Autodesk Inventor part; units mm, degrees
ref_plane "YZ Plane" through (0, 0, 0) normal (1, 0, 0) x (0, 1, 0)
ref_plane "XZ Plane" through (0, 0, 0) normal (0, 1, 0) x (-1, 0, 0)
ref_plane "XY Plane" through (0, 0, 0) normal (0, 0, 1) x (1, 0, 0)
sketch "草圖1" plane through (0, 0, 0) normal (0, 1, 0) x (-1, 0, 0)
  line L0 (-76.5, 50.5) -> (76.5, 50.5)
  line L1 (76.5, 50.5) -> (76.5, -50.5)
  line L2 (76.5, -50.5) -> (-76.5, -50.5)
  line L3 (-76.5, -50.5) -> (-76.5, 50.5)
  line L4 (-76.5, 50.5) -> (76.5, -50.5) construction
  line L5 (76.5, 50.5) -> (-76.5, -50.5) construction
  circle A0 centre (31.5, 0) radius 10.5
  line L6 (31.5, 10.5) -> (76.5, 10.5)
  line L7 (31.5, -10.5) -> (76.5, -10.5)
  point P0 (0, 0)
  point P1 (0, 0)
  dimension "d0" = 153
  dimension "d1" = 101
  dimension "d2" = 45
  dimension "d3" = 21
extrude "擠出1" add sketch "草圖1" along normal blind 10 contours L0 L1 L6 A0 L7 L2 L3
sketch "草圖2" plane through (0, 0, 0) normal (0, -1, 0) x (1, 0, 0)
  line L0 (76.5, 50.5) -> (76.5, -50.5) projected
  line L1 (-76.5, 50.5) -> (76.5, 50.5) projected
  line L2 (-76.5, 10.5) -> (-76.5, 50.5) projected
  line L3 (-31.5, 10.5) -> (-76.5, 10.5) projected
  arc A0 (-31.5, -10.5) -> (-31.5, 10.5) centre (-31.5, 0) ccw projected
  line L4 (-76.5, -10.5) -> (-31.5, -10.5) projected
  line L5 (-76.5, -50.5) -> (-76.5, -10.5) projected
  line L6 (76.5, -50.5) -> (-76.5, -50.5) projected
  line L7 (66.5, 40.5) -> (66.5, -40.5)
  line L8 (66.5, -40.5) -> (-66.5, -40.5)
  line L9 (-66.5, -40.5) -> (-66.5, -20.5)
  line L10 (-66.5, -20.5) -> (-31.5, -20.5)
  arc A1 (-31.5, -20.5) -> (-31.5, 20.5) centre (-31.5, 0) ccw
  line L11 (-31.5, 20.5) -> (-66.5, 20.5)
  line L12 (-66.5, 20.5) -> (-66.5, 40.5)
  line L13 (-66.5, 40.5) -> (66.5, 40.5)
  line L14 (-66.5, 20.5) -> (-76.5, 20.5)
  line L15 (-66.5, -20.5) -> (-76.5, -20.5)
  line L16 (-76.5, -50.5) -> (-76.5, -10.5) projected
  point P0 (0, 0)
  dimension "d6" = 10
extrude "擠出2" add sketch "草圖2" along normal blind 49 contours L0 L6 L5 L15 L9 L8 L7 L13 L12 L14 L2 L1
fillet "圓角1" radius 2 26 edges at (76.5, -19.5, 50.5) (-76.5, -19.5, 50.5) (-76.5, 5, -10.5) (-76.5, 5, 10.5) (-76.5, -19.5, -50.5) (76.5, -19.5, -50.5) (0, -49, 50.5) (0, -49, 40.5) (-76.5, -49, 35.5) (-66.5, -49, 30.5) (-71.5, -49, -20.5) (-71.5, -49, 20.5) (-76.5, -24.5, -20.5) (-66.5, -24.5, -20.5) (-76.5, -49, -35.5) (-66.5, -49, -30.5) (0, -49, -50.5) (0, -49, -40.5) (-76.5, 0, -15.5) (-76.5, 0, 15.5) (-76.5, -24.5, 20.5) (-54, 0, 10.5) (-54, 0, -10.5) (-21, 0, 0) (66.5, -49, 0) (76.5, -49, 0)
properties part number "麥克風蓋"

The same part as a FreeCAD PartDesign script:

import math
import FreeCAD as App
import Part
import Sketcher

V = App.Vector


def edges_at(feature, points):
    """Names of the edges that pass closest to the given points."""
    edges = feature.Shape.Edges
    near = lambda p: min(range(len(edges)), key=lambda i: edges[i].distToShape(Part.Vertex(*p))[0])
    return sorted({f"Edge{near(p) + 1}" for p in points})


def add_polygon(sketch, points):
    """Adds a closed chain of lines whose ends are joined by coincident constraints."""
    first, n = sketch.GeometryCount, len(points)
    for a, b in zip(points, points[1:] + points[:1]):
        sketch.addGeometry(Part.LineSegment(App.Vector(*a, 0), App.Vector(*b, 0)), False)
    for i in range(n):
        sketch.addConstraint(Sketcher.Constraint("Coincident", first + i, 2, first + (i + 1) % n, 1))

doc = App.newDocument("Part")
body = doc.addObject("PartDesign::Body", "Body")

# Sketch on XZ plane
sketch1 = body.newObject("Sketcher::SketchObject", "Sketch")
sketch1.AttachmentSupport = (doc.getObject("XZ_Plane"), [""])
sketch1.MapMode = "FlatFace"
sketch1.addGeometry([
    Part.LineSegment(V(-76, 50, 0), V(76, 50, 0)),  # 0
    Part.LineSegment(V(76, 50, 0), V(76, -50, 0)),  # 1
    Part.LineSegment(V(76, -50, 0), V(-76, -50, 0)),  # 2
    Part.LineSegment(V(-76, -50, 0), V(-76, -10, 0)),  # 3
    Part.LineSegment(V(-76, -10, 0), V(-32, -10, 0)),  # 4
    Part.ArcOfCircle(Part.Circle(V(-32, 0, 0), V(0, 0, 1), 10), math.radians(-90), math.radians(90)),  # 5
    Part.LineSegment(V(-32, 10, 0), V(-76, 10, 0)),  # 6
    Part.LineSegment(V(-76, 10, 0), V(-76, 50, 0)),  # 7
], False)
sketch1.addConstraint([
    Sketcher.Constraint("Coincident", 0, 2, 1, 1),
    Sketcher.Constraint("Coincident", 1, 2, 2, 1),
    Sketcher.Constraint("Coincident", 2, 2, 3, 1),
    Sketcher.Constraint("Coincident", 3, 2, 4, 1),
    Sketcher.Constraint("Tangent", 4, 2, 5, 1),
    Sketcher.Constraint("Tangent", 5, 2, 6, 1),
    Sketcher.Constraint("Coincident", 6, 2, 7, 1),
    Sketcher.Constraint("Coincident", 7, 2, 0, 1),
    Sketcher.Constraint("Horizontal", 0),
    Sketcher.Constraint("Vertical", 1),
    Sketcher.Constraint("Horizontal", 2),
    Sketcher.Constraint("Vertical", 3),
    Sketcher.Constraint("Horizontal", 4),
    Sketcher.Constraint("Horizontal", 6),
    Sketcher.Constraint("Vertical", 7),
    Sketcher.Constraint("Symmetric", 0, 2, 2, 2, -1, 1),
    Sketcher.Constraint("Symmetric", 3, 2, 6, 2, -1),
    Sketcher.Constraint("Radius", 5, 10.5),
    Sketcher.Constraint("DistanceX", 0, 1, 0, 2, 153.0),
    Sketcher.Constraint("DistanceX", 4, 1, 4, 2, 45.0),
    Sketcher.Constraint("DistanceY", 1, 2, 1, 1, 101.0),
])
pad1 = body.newObject("PartDesign::Pad", "Pad")
pad1.Profile = sketch1
pad1.Length = 10
pad1.Reversed = True

# Sketch on XZ plane
sketch2 = body.newObject("Sketcher::SketchObject", "Sketch001")
sketch2.AttachmentSupport = (doc.getObject("XZ_Plane"), [""])
sketch2.MapMode = "FlatFace"
add_polygon(sketch2, [(76, -50), (76, 50), (-76, 50), (-76, 20), (-66, 20), (-66, 40), (66, 40), (66, -40), (-66, -40), (-66, -20), (-76, -20), (-76, -50)])  # lines 0-11
sketch2.addConstraint([
    Sketcher.Constraint("Vertical", 0),
    Sketcher.Constraint("Horizontal", 1),
    Sketcher.Constraint("Vertical", 2),
    Sketcher.Constraint("Horizontal", 3),
    Sketcher.Constraint("Vertical", 4),
    Sketcher.Constraint("Horizontal", 5),
    Sketcher.Constraint("Vertical", 6),
    Sketcher.Constraint("Horizontal", 7),
    Sketcher.Constraint("Vertical", 8),
    Sketcher.Constraint("Horizontal", 9),
    Sketcher.Constraint("Vertical", 10),
    Sketcher.Constraint("Horizontal", 11),
    Sketcher.Constraint("Symmetric", 4, 2, 6, 2, -1, 1),
    Sketcher.Constraint("Symmetric", 0, 2, 10, 2, -1, 1),
    Sketcher.Constraint("Symmetric", 3, 2, 8, 2, -1),
    Sketcher.Constraint("Vertical", 2, 2, 9, 2),
    Sketcher.Constraint("DistanceX", 3, 1, 3, 2, 10.0),
    Sketcher.Constraint("DistanceY", 4, 2, 1, 2, 10.0),
    Sketcher.Constraint("DistanceX", 1, 2, 1, 1, 153.0),
    Sketcher.Constraint("DistanceY", 0, 1, 0, 2, 101.0),
    Sketcher.Constraint("DistanceY", 2, 2, 2, 1, 30.0),
])
pad2 = body.newObject("PartDesign::Pad", "Pad001")
pad2.Profile = sketch2
pad2.Length = 49
doc.recompute()

fillet = body.newObject("PartDesign::Fillet", "Fillet")
fillet.Base = (pad2, edges_at(pad2, [
    (76.5, -19.5, 50.5),
    (-76.5, -19.5, 50.5),
    (-76.5, 5, -10.5),
    (-76.5, 5, 10.5),
    (-76.5, -19.5, -50.5),
    (76.5, -19.5, -50.5),
    (0, -49, 50.5),
    (0, -49, 40.5),
    (-76.5, -49, 35.5),
    (-66.5, -49, 30.5),
    (-71.5, -49, -20.5),
    (-71.5, -49, 20.5),
    (-76.5, -24.5, -20.5),
    (-66.5, -24.5, -20.5),
    (-76.5, -49, -35.5),
    (-66.5, -49, -30.5),
    (0, -49, -50.5),
    (0, -49, -40.5),
    (-76.5, 0, -15.5),
    (-76.5, 0, 15.5),
    (-76.5, -24.5, 20.5),
    (-54, 0, 10.5),
    (-54, 0, -10.5),
    (-21, 0, 0),
    (66.5, -49, 0),
    (76.5, -49, 0),
]))
fillet.Radius = 2

doc.recompute()
